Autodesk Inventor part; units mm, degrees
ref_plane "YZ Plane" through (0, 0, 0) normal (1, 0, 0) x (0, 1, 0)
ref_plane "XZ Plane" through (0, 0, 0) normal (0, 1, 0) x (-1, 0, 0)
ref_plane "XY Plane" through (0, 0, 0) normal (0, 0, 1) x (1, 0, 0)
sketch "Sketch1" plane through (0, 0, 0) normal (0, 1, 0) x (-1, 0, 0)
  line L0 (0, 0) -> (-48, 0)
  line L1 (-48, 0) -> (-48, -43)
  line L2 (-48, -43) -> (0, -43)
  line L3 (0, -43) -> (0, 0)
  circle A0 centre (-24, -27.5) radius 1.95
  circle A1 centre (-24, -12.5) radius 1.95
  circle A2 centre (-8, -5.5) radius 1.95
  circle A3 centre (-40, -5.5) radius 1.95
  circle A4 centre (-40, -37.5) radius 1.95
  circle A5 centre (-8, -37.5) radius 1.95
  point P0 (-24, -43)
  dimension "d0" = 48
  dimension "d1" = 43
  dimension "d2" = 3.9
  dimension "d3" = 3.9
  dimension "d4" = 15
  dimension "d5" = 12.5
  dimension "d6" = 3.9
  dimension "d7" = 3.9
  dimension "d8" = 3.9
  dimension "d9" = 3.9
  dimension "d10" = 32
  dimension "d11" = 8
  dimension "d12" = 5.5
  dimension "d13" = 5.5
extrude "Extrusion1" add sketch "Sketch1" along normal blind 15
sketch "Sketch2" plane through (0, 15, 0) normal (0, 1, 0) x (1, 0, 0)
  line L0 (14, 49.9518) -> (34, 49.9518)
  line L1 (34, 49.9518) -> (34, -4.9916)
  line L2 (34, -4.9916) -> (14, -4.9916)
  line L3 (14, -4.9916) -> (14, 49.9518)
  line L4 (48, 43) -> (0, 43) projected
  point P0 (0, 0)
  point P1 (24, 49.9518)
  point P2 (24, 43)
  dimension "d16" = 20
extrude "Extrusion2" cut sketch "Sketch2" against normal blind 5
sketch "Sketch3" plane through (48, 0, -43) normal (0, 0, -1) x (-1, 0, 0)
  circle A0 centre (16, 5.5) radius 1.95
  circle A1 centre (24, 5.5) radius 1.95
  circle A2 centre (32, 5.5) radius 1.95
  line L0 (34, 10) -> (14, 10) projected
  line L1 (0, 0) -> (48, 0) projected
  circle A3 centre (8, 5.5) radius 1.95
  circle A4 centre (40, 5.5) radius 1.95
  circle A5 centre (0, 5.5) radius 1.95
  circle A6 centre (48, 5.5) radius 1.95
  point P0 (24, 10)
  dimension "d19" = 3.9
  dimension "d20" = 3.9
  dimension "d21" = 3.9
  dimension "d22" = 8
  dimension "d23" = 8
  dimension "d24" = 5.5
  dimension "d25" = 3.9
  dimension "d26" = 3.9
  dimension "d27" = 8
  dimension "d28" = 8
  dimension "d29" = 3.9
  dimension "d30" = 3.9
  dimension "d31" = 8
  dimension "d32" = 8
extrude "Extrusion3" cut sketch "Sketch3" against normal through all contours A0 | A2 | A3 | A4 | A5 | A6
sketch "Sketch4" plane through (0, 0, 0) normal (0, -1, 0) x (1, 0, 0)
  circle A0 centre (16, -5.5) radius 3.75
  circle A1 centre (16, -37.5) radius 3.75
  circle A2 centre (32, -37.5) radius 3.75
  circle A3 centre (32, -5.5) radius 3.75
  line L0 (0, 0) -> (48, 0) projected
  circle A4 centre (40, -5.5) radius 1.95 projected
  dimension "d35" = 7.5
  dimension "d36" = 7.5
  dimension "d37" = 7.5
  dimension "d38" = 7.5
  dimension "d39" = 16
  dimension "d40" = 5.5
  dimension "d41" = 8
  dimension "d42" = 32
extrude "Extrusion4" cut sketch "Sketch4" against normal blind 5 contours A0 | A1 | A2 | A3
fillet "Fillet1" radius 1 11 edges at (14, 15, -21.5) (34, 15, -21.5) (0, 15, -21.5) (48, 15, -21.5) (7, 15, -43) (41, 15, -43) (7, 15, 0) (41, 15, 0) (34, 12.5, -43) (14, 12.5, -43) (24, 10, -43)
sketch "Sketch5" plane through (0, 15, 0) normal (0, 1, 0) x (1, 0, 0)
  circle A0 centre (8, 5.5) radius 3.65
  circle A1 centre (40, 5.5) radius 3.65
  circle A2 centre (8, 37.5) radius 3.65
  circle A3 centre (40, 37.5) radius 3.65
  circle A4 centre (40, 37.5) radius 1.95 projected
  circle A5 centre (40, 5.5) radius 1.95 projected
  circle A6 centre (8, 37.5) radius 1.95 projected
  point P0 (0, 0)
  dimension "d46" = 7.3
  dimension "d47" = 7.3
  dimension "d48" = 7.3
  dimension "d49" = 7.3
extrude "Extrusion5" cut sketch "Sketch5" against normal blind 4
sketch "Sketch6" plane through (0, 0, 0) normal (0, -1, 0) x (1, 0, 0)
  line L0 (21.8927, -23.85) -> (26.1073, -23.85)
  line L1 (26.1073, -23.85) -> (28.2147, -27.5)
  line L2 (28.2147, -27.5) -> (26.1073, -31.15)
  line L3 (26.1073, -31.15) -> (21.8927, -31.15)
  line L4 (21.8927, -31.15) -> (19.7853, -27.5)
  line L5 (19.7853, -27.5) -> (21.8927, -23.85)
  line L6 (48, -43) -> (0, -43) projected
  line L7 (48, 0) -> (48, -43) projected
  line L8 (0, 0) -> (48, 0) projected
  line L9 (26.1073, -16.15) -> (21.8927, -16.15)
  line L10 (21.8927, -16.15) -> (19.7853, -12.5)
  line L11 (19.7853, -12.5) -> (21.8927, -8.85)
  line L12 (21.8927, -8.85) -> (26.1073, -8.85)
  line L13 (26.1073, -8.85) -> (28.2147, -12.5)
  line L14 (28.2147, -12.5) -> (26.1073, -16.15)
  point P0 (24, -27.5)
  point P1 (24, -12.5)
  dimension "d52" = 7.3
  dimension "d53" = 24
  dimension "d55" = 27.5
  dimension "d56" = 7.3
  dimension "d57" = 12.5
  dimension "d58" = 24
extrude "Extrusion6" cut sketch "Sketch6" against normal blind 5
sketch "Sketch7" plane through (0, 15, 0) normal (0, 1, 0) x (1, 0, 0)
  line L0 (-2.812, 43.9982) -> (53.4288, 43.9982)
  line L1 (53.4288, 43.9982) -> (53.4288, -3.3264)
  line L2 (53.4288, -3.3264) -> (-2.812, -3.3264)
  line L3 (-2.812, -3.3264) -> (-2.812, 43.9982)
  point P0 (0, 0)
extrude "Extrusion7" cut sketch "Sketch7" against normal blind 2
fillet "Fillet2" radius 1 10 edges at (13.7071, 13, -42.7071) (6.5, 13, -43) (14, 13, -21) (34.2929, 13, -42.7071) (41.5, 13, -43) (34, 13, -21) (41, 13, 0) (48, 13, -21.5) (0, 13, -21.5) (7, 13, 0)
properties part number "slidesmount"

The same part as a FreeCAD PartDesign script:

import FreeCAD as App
import Part
import Sketcher
from FreeCAD import Vector
Q = App.Units.Quantity


def edges_at(feature, points):
    """Names of the edges that pass closest to the given points."""
    edges = feature.Shape.Edges
    near = lambda p: min(range(len(edges)), key=lambda i: edges[i].distToShape(Part.Vertex(*p))[0])
    return sorted({f"Edge{near(p) + 1}" for p in points})

doc = App.newDocument("Part")
body = doc.addObject("PartDesign::Body", "Body")

# Sketch on XZ plane
sketch1 = body.newObject("Sketcher::SketchObject", "Sketch")
sketch1.AttachmentSupport = (doc.getObject("XZ_Plane"), [""])
sketch1.MapMode = "FlatFace"
sketch1.addGeometry(Part.LineSegment(Vector(0, -43, 0), Vector(0, 0, 0)), False)
sketch1.addGeometry(Part.LineSegment(Vector(0, 0, 0), Vector(48, 0, 0)), False)
sketch1.addGeometry(Part.LineSegment(Vector(48, 0, 0), Vector(48, -43, 0)), False)
sketch1.addGeometry(Part.LineSegment(Vector(48, -43, 0), Vector(0, -43, 0)), False)
sketch1.addGeometry(Part.Circle(Vector(40, -37.5, 0), Vector(0, 0, 1), 1.9), False)
sketch1.addGeometry(Part.Circle(Vector(8, -37.5, 0), Vector(0, 0, 1), 1.9), False)
sketch1.addGeometry(Part.Circle(Vector(24, -27.5, 0), Vector(0, 0, 1), 1.9), False)
sketch1.addGeometry(Part.Circle(Vector(40, -5.5, 0), Vector(0, 0, 1), 1.9), False)
sketch1.addGeometry(Part.Circle(Vector(24, -12.5, 0), Vector(0, 0, 1), 1.9), False)
sketch1.addGeometry(Part.Circle(Vector(8, -5.5, 0), Vector(0, 0, 1), 1.9), False)
sketch1.addConstraint(Sketcher.Constraint("Coincident", 0, 2, 1, 1))
sketch1.addConstraint(Sketcher.Constraint("Coincident", 1, 2, 2, 1))
sketch1.addConstraint(Sketcher.Constraint("Coincident", 2, 2, 3, 1))
sketch1.addConstraint(Sketcher.Constraint("Coincident", 3, 2, 0, 1))
sketch1.addConstraint(Sketcher.Constraint("Vertical", 0))
sketch1.addConstraint(Sketcher.Constraint("Horizontal", 1))
sketch1.addConstraint(Sketcher.Constraint("Vertical", 2))
sketch1.addConstraint(Sketcher.Constraint("Horizontal", 3))
sketch1.addConstraint(Sketcher.Constraint("Coincident", 0, 2, -1, 1))
sketch1.addConstraint(Sketcher.Constraint("Equal", 4, 5))
sketch1.addConstraint(Sketcher.Constraint("Equal", 5, 6))
sketch1.addConstraint(Sketcher.Constraint("Equal", 6, 7))
sketch1.addConstraint(Sketcher.Constraint("Equal", 7, 8))
sketch1.addConstraint(Sketcher.Constraint("Equal", 8, 9))
sketch1.addConstraint(Sketcher.Constraint("Horizontal", 4, 3, 5, 3))
sketch1.addConstraint(Sketcher.Constraint("Horizontal", 7, 3, 9, 3))
sketch1.addConstraint(Sketcher.Constraint("Vertical", 4, 3, 7, 3))
sketch1.addConstraint(Sketcher.Constraint("Vertical", 6, 3, 8, 3))
sketch1.addConstraint(Sketcher.Constraint("Vertical", 5, 3, 9, 3))
sketch1.addConstraint(Sketcher.Constraint("Diameter", 4, Q("3.9 mm")))
sketch1.addConstraint(Sketcher.Constraint("DistanceX", 1, 1, 1, 2, Q("48 mm")))
sketch1.addConstraint(Sketcher.Constraint("DistanceY", 0, 1, 0, 2, Q("43 mm")))
sketch1.addConstraint(Sketcher.Constraint("DistanceX", -1, 1, 5, 3, Q("8 mm")))
sketch1.addConstraint(Sketcher.Constraint("DistanceX", 5, 3, 4, 3, Q("32 mm")))
sketch1.addConstraint(Sketcher.Constraint("DistanceY", 4, 3, 7, 3, Q("32 mm")))
sketch1.addConstraint(Sketcher.Constraint("DistanceY", 6, 3, 8, 3, Q("15 mm")))
sketch1.addConstraint(Sketcher.Constraint("DistanceY", 7, 3, -1, 1, Q("5.5 mm")))
sketch1.addConstraint(Sketcher.Constraint("DistanceY", 8, 3, -1, 1, Q("12.5 mm")))
sketch1.addConstraint(Sketcher.Constraint("DistanceX", -1, 1, 6, 3, Q("24 mm")))
pad1 = body.newObject("PartDesign::Pad", "Pad")
pad1.Profile = sketch1
pad1.Length = 15
pad1.Reversed = True

# Sketch on XZ plane
sketch2 = body.newObject("Sketcher::SketchObject", "Sketch001")
sketch2.AttachmentSupport = (doc.getObject("XZ_Plane"), [""])
sketch2.MapMode = "FlatFace"
sketch2.AttachmentOffset = App.Placement(Vector(0, 0, -15), App.Rotation())
sketch2.addGeometry(Part.LineSegment(Vector(34, -50, 0), Vector(14, -50, 0)), False)
sketch2.addGeometry(Part.LineSegment(Vector(14, -50, 0), Vector(14, 5, 0)), False)
sketch2.addGeometry(Part.LineSegment(Vector(14, 5, 0), Vector(34, 5, 0)), False)
sketch2.addGeometry(Part.LineSegment(Vector(34, 5, 0), Vector(34, -50, 0)), False)
sketch2.addConstraint(Sketcher.Constraint("Coincident", 0, 2, 1, 1))
sketch2.addConstraint(Sketcher.Constraint("Coincident", 1, 2, 2, 1))
sketch2.addConstraint(Sketcher.Constraint("Coincident", 2, 2, 3, 1))
sketch2.addConstraint(Sketcher.Constraint("Coincident", 3, 2, 0, 1))
sketch2.addConstraint(Sketcher.Constraint("Horizontal", 0))
sketch2.addConstraint(Sketcher.Constraint("Vertical", 1))
sketch2.addConstraint(Sketcher.Constraint("Horizontal", 2))
sketch2.addConstraint(Sketcher.Constraint("Vertical", 3))
sketch2.addConstraint(Sketcher.Constraint("DistanceX", 0, 2, 0, 1, Q("20 mm")))
sketch2.addConstraint(Sketcher.Constraint("DistanceX", -1, 1, 0, 2, Q("14 mm")))
sketch2.addConstraint(Sketcher.Constraint("DistanceY", 1, 1, 1, 2, Q("54.9434 mm")))
sketch2.addConstraint(Sketcher.Constraint("DistanceY", 0, 2, -1, 1, Q("49.9518 mm")))
pocket1 = body.newObject("PartDesign::Pocket", "Pocket")
pocket1.Profile = sketch2
pocket1.Length = 5
pocket1.Reversed = True

# Sketch on XY plane
sketch3 = body.newObject("Sketcher::SketchObject", "Sketch002")
sketch3.AttachmentSupport = (doc.getObject("XY_Plane"), [""])
sketch3.MapMode = "FlatFace"
sketch3.AttachmentOffset = App.Placement(Vector(0, 0, -43), App.Rotation())
sketch3.addGeometry(Part.Circle(Vector(32, 5.5, 0), Vector(0, 0, 1), 1.9), False)
sketch3.addGeometry(Part.Circle(Vector(16, 5.5, 0), Vector(0, 0, 1), 1.9), False)
sketch3.addGeometry(Part.Circle(Vector(40, 5.5, 0), Vector(0, 0, 1), 1.9), False)
sketch3.addGeometry(Part.Circle(Vector(8, 5.5, 0), Vector(0, 0, 1), 1.9), False)
sketch3.addGeometry(Part.Circle(Vector(48, 5.5, 0), Vector(0, 0, 1), 1.9), False)
sketch3.addGeometry(Part.Circle(Vector(0, 5.5, 0), Vector(0, 0, 1), 1.9), False)
sketch3.addConstraint(Sketcher.Constraint("Equal", 0, 1))
sketch3.addConstraint(Sketcher.Constraint("Equal", 1, 2))
sketch3.addConstraint(Sketcher.Constraint("Equal", 2, 3))
sketch3.addConstraint(Sketcher.Constraint("Equal", 3, 4))
sketch3.addConstraint(Sketcher.Constraint("Equal", 4, 5))
sketch3.addConstraint(Sketcher.Constraint("PointOnObject", 5, 3, -2))
sketch3.addConstraint(Sketcher.Constraint("Horizontal", 0, 3, 1, 3))
sketch3.addConstraint(Sketcher.Constraint("Horizontal", 1, 3, 2, 3))
sketch3.addConstraint(Sketcher.Constraint("Horizontal", 2, 3, 3, 3))
sketch3.addConstraint(Sketcher.Constraint("Horizontal", 3, 3, 4, 3))
sketch3.addConstraint(Sketcher.Constraint("Horizontal", 4, 3, 5, 3))
sketch3.addConstraint(Sketcher.Constraint("Diameter", 0, Q("3.9 mm")))
sketch3.addConstraint(Sketcher.Constraint("DistanceX", -1, 1, 3, 3, Q("8 mm")))
sketch3.addConstraint(Sketcher.Constraint("DistanceX", 0, 3, 2, 3, Q("8 mm")))
sketch3.addConstraint(Sketcher.Constraint("DistanceX", 3, 3, 1, 3, Q("8 mm")))
sketch3.addConstraint(Sketcher.Constraint("DistanceX", 2, 3, 4, 3, Q("8 mm")))
sketch3.addConstraint(Sketcher.Constraint("DistanceY", -1, 1, 0, 3, Q("5.5 mm")))
sketch3.addConstraint(Sketcher.Constraint("DistanceX", -1, 1, 0, 3, Q("32 mm")))
pocket2 = body.newObject("PartDesign::Pocket", "Pocket001")
pocket2.Profile = sketch3
pocket2.Type = "ThroughAll"
pocket2.Reversed = True

# Sketch on XZ plane
sketch4 = body.newObject("Sketcher::SketchObject", "Sketch003")
sketch4.AttachmentSupport = (doc.getObject("XZ_Plane"), [""])
sketch4.MapMode = "FlatFace"
sketch4.addGeometry(Part.Circle(Vector(16, -5.5, 0), Vector(0, 0, 1), 3.8), False)
sketch4.addGeometry(Part.Circle(Vector(16, -37.5, 0), Vector(0, 0, 1), 3.8), False)
sketch4.addGeometry(Part.Circle(Vector(32, -37.5, 0), Vector(0, 0, 1), 3.8), False)
sketch4.addGeometry(Part.Circle(Vector(32, -5.5, 0), Vector(0, 0, 1), 3.8), False)
sketch4.addConstraint(Sketcher.Constraint("Equal", 0, 1))
sketch4.addConstraint(Sketcher.Constraint("Equal", 1, 2))
sketch4.addConstraint(Sketcher.Constraint("Equal", 2, 3))
sketch4.addConstraint(Sketcher.Constraint("Horizontal", 1, 3, 2, 3))
sketch4.addConstraint(Sketcher.Constraint("Horizontal", 0, 3, 3, 3))
sketch4.addConstraint(Sketcher.Constraint("Vertical", 0, 3, 1, 3))
sketch4.addConstraint(Sketcher.Constraint("Vertical", 2, 3, 3, 3))
sketch4.addConstraint(Sketcher.Constraint("Diameter", 0, Q("7.5 mm")))
sketch4.addConstraint(Sketcher.Constraint("DistanceX", -1, 1, 0, 3, Q("16 mm")))
sketch4.addConstraint(Sketcher.Constraint("DistanceX", -1, 1, 2, 3, Q("32 mm")))
sketch4.addConstraint(Sketcher.Constraint("DistanceY", 1, 3, 0, 3, Q("32 mm")))
sketch4.addConstraint(Sketcher.Constraint("DistanceY", 0, 3, -1, 1, Q("5.5 mm")))
pocket3 = body.newObject("PartDesign::Pocket", "Pocket002")
pocket3.Profile = sketch4
pocket3.Length = 5
doc.recompute()

fillet = body.newObject("PartDesign::Fillet", "Fillet")
fillet.Base = (pocket3, edges_at(pocket3, [
    (14, 15, -21.5),
    (34, 15, -21.5),
    (0, 15, -21.5),
    (48, 15, -21.5),
    (7, 15, -43),
    (41, 15, -43),
    (7, 15, 0),
    (41, 15, 0),
    (34, 12.5, -43),
    (14, 12.5, -43),
    (24, 10, -43),
]))
fillet.Radius = 1

# Sketch on XZ plane
sketch5 = body.newObject("Sketcher::SketchObject", "Sketch004")
sketch5.AttachmentSupport = (doc.getObject("XZ_Plane"), [""])
sketch5.MapMode = "FlatFace"
sketch5.AttachmentOffset = App.Placement(Vector(0, 0, -15), App.Rotation())
sketch5.addGeometry(Part.Circle(Vector(8, -5.5, 0), Vector(0, 0, 1), 3.6), False)
sketch5.addGeometry(Part.Circle(Vector(40, -5.5, 0), Vector(0, 0, 1), 3.6), False)
sketch5.addGeometry(Part.Circle(Vector(40, -5.5, 0), Vector(0, 0, 1), 1.9), False)
sketch5.addGeometry(Part.Circle(Vector(8, -37.5, 0), Vector(0, 0, 1), 3.6), False)
sketch5.addGeometry(Part.Circle(Vector(8, -37.5, 0), Vector(0, 0, 1), 1.9), False)
sketch5.addGeometry(Part.Circle(Vector(40, -37.5, 0), Vector(0, 0, 1), 3.6), False)
sketch5.addGeometry(Part.Circle(Vector(40, -37.5, 0), Vector(0, 0, 1), 1.9), False)
sketch5.addConstraint(Sketcher.Constraint("Coincident", 2, 3, 1, 3))
sketch5.addConstraint(Sketcher.Constraint("Coincident", 4, 3, 3, 3))
sketch5.addConstraint(Sketcher.Constraint("Coincident", 6, 3, 5, 3))
sketch5.addConstraint(Sketcher.Constraint("Equal", 0, 1))
sketch5.addConstraint(Sketcher.Constraint("Equal", 1, 3))
sketch5.addConstraint(Sketcher.Constraint("Equal", 2, 4))
sketch5.addConstraint(Sketcher.Constraint("Equal", 3, 5))
sketch5.addConstraint(Sketcher.Constraint("Equal", 4, 6))
sketch5.addConstraint(Sketcher.Constraint("Horizontal", 0, 3, 1, 3))
sketch5.addConstraint(Sketcher.Constraint("Horizontal", 4, 3, 5, 3))
sketch5.addConstraint(Sketcher.Constraint("Vertical", 0, 3, 3, 3))
sketch5.addConstraint(Sketcher.Constraint("Vertical", 2, 3, 5, 3))
sketch5.addConstraint(Sketcher.Constraint("Diameter", 0, Q("7.3 mm")))
sketch5.addConstraint(Sketcher.Constraint("Diameter", 2, Q("3.9 mm")))
sketch5.addConstraint(Sketcher.Constraint("DistanceX", -1, 1, 0, 3, Q("8 mm")))
sketch5.addConstraint(Sketcher.Constraint("DistanceX", -1, 1, 1, 3, Q("40 mm")))
sketch5.addConstraint(Sketcher.Constraint("DistanceY", 3, 3, 0, 3, Q("32 mm")))
sketch5.addConstraint(Sketcher.Constraint("DistanceY", 0, 3, -1, 1, Q("5.5 mm")))
pocket4 = body.newObject("PartDesign::Pocket", "Pocket003")
pocket4.Profile = sketch5
pocket4.Length = 4
pocket4.Reversed = True

# Sketch on XZ plane
sketch6 = body.newObject("Sketcher::SketchObject", "Sketch005")
sketch6.AttachmentSupport = (doc.getObject("XZ_Plane"), [""])
sketch6.MapMode = "FlatFace"
sketch6.addGeometry(Part.LineSegment(Vector(26.1, -23.9, 0), Vector(21.9, -23.9, 0)), False)
sketch6.addGeometry(Part.LineSegment(Vector(21.9, -23.9, 0), Vector(19.8, -27.5, 0)), False)
sketch6.addGeometry(Part.LineSegment(Vector(19.8, -27.5, 0), Vector(21.9, -31.1, 0)), False)
sketch6.addGeometry(Part.LineSegment(Vector(21.9, -31.1, 0), Vector(26.1, -31.1, 0)), False)
sketch6.addGeometry(Part.LineSegment(Vector(26.1, -31.1, 0), Vector(28.2, -27.5, 0)), False)
sketch6.addGeometry(Part.LineSegment(Vector(28.2, -27.5, 0), Vector(26.1, -23.9, 0)), False)
sketch6.addGeometry(Part.LineSegment(Vector(21.9, -16.1, 0), Vector(26.1, -16.1, 0)), False)
sketch6.addGeometry(Part.LineSegment(Vector(26.1, -16.1, 0), Vector(28.2, -12.5, 0)), False)
sketch6.addGeometry(Part.LineSegment(Vector(28.2, -12.5, 0), Vector(26.1, -8.8, 0)), False)
sketch6.addGeometry(Part.LineSegment(Vector(26.1, -8.8, 0), Vector(21.9, -8.8, 0)), False)
sketch6.addGeometry(Part.LineSegment(Vector(21.9, -8.8, 0), Vector(19.8, -12.5, 0)), False)
sketch6.addGeometry(Part.LineSegment(Vector(19.8, -12.5, 0), Vector(21.9, -16.1, 0)), False)
sketch6.addConstraint(Sketcher.Constraint("Coincident", 0, 2, 1, 1))
sketch6.addConstraint(Sketcher.Constraint("Coincident", 1, 2, 2, 1))
sketch6.addConstraint(Sketcher.Constraint("Coincident", 2, 2, 3, 1))
sketch6.addConstraint(Sketcher.Constraint("Coincident", 3, 2, 4, 1))
sketch6.addConstraint(Sketcher.Constraint("Coincident", 4, 2, 5, 1))
sketch6.addConstraint(Sketcher.Constraint("Coincident", 5, 2, 0, 1))
sketch6.addConstraint(Sketcher.Constraint("Coincident", 6, 2, 7, 1))
sketch6.addConstraint(Sketcher.Constraint("Coincident", 7, 2, 8, 1))
sketch6.addConstraint(Sketcher.Constraint("Coincident", 8, 2, 9, 1))
sketch6.addConstraint(Sketcher.Constraint("Coincident", 9, 2, 10, 1))
sketch6.addConstraint(Sketcher.Constraint("Coincident", 10, 2, 11, 1))
sketch6.addConstraint(Sketcher.Constraint("Coincident", 11, 2, 6, 1))
sketch6.addConstraint(Sketcher.Constraint("Horizontal", 0))
sketch6.addConstraint(Sketcher.Constraint("Horizontal", 3))
sketch6.addConstraint(Sketcher.Constraint("Horizontal", 6))
sketch6.addConstraint(Sketcher.Constraint("Horizontal", 9))
sketch6.addConstraint(Sketcher.Constraint("Parallel", 1, 4))
sketch6.addConstraint(Sketcher.Constraint("Parallel", 2, 5))
sketch6.addConstraint(Sketcher.Constraint("Parallel", 4, 7))
sketch6.addConstraint(Sketcher.Constraint("Parallel", 5, 8))
sketch6.addConstraint(Sketcher.Constraint("Parallel", 7, 10))
sketch6.addConstraint(Sketcher.Constraint("Parallel", 8, 11))
sketch6.addConstraint(Sketcher.Constraint("Horizontal", 1, 2, 4, 2))
sketch6.addConstraint(Sketcher.Constraint("Horizontal", 7, 2, 10, 2))
sketch6.addConstraint(Sketcher.Constraint("Vertical", 0, 2, 2, 2))
sketch6.addConstraint(Sketcher.Constraint("Vertical", 3, 2, 5, 2))
sketch6.addConstraint(Sketcher.Constraint("Vertical", 5, 2, 6, 2))
sketch6.addConstraint(Sketcher.Constraint("Vertical", 4, 2, 7, 2))
sketch6.addConstraint(Sketcher.Constraint("Vertical", 6, 2, 8, 2))
sketch6.addConstraint(Sketcher.Constraint("Vertical", 2, 2, 9, 2))
sketch6.addConstraint(Sketcher.Constraint("DistanceY", 1, 2, -1, 1, Q("27.5 mm")))
sketch6.addConstraint(Sketcher.Constraint("DistanceY", 7, 2, -1, 1, Q("12.5 mm")))
sketch6.addConstraint(Sketcher.Constraint("DistanceY", 2, 2, 0, 2, Q("7.3 mm")))
sketch6.addConstraint(Sketcher.Constraint("Angle", 1, Q("-120.0008 deg")))
sketch6.addConstraint(Sketcher.Constraint("DistanceX", 0, 2, 0, 1, Q("4.2146 mm")))
sketch6.addConstraint(Sketcher.Constraint("DistanceX", -1, 1, 0, 2, Q("21.8927 mm")))
pocket5 = body.newObject("PartDesign::Pocket", "Pocket004")
pocket5.Profile = sketch6
pocket5.Length = 5

# Sketch on XZ plane
sketch7 = body.newObject("Sketcher::SketchObject", "Sketch006")
sketch7.AttachmentSupport = (doc.getObject("XZ_Plane"), [""])
sketch7.MapMode = "FlatFace"
sketch7.AttachmentOffset = App.Placement(Vector(0, 0, -15), App.Rotation())
sketch7.addGeometry(Part.LineSegment(Vector(53, -44, 0), Vector(-3, -44, 0)), False)
sketch7.addGeometry(Part.LineSegment(Vector(-3, -44, 0), Vector(-3, 3, 0)), False)
sketch7.addGeometry(Part.LineSegment(Vector(-3, 3, 0), Vector(53, 3, 0)), False)
sketch7.addGeometry(Part.LineSegment(Vector(53, 3, 0), Vector(53, -44, 0)), False)
sketch7.addConstraint(Sketcher.Constraint("Coincident", 0, 2, 1, 1))
sketch7.addConstraint(Sketcher.Constraint("Coincident", 1, 2, 2, 1))
sketch7.addConstraint(Sketcher.Constraint("Coincident", 2, 2, 3, 1))
sketch7.addConstraint(Sketcher.Constraint("Coincident", 3, 2, 0, 1))
sketch7.addConstraint(Sketcher.Constraint("Horizontal", 0))
sketch7.addConstraint(Sketcher.Constraint("Vertical", 1))
sketch7.addConstraint(Sketcher.Constraint("Horizontal", 2))
sketch7.addConstraint(Sketcher.Constraint("Vertical", 3))
sketch7.addConstraint(Sketcher.Constraint("DistanceX", 0, 2, 0, 1, Q("56.2408 mm")))
sketch7.addConstraint(Sketcher.Constraint("DistanceY", 1, 1, 1, 2, Q("47.3246 mm")))
sketch7.addConstraint(Sketcher.Constraint("DistanceX", 0, 2, -1, 1, Q("2.812 mm")))
sketch7.addConstraint(Sketcher.Constraint("DistanceY", 0, 2, -1, 1, Q("43.9982 mm")))
pocket6 = body.newObject("PartDesign::Pocket", "Pocket005")
pocket6.Profile = sketch7
pocket6.Length = 2
pocket6.Reversed = True
doc.recompute()

fillet2 = body.newObject("PartDesign::Fillet", "Fillet001")
fillet2.Base = (pocket6, edges_at(pocket6, [
    (13.707, 13, -42.707),
    (6.5, 13, -43),
    (14, 13, -21),
    (34.293, 13, -42.707),
    (41.5, 13, -43),
    (34, 13, -21),
    (41, 13, 0),
    (48, 13, -21.5),
    (0, 13, -21.5),
    (7, 13, 0),
]))
fillet2.Radius = 1

doc.recompute()
